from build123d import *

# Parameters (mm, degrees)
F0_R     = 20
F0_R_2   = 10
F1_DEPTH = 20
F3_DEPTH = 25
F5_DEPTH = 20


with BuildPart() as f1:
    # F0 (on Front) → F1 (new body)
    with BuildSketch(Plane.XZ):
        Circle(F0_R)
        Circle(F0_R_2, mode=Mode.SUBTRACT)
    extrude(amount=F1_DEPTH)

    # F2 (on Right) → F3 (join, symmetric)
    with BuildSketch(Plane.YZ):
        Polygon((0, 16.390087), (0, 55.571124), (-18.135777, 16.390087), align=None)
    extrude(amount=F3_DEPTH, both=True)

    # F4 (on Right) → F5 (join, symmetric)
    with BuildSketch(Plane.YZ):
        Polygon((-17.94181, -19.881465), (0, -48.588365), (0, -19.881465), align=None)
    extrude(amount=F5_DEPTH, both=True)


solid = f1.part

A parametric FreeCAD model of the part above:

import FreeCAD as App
import Part
import Sketcher

V = App.Vector
Q = App.Units.Quantity

doc = App.newDocument("Part")
params = doc.addObject("Spreadsheet::Sheet", "Params")
for row, (alias, value) in enumerate([
    ("sketch1_diameter", "40 mm"),
    ("sketch1_diameter2", "20 mm"),
    ("pad1_length", "20 mm"),
    ("pad2_length", "50 mm"),
    ("pad3_length", "40 mm"),
], start=1):
    params.set(f"A{row}", alias)
    params.set(f"B{row}", "=" + value)
    params.setAlias(f"B{row}", alias)

body = doc.addObject("PartDesign::Body", "Body")

sketch1 = body.newObject("Sketcher::SketchObject", "Sketch")
sketch1.AttachmentSupport = (doc.getObject("XZ_Plane"), [""])
sketch1.MapMode = "FlatFace"
sketch1.addGeometry([
    Part.Circle(V(0, 0, 0), V(0, 0, 1), 20),
    Part.Circle(V(0, 0, 0), V(0, 0, 1), 10),
], False)
sketch1.addConstraint([
    Sketcher.Constraint("Coincident", 0, 3, -1, 1),
    Sketcher.Constraint("Coincident", 1, 3, -1, 1),
    Sketcher.Constraint("Diameter", 0, Q("40 mm")),
    Sketcher.Constraint("Diameter", 1, Q("20 mm")),
])
sketch1.setExpression("Constraints[2]", "Params.sketch1_diameter")
sketch1.setExpression("Constraints[3]", "Params.sketch1_diameter2")
pad1 = body.newObject("PartDesign::Pad", "Pad")
pad1.Profile = sketch1
pad1.setExpression("Length", "Params.pad1_length")

sketch2 = body.newObject("Sketcher::SketchObject", "Sketch001")
sketch2.AttachmentSupport = (doc.getObject("YZ_Plane"), [""])
sketch2.MapMode = "FlatFace"
sketch2.addGeometry([
    Part.LineSegment(V(0, 16, 0), V(0, 56, 0)),
    Part.LineSegment(V(0, 56, 0), V(-18, 16, 0)),
    Part.LineSegment(V(-18, 16, 0), V(0, 16, 0)),
], False)
sketch2.addConstraint([
    Sketcher.Constraint("Coincident", 0, 2, 1, 1),
    Sketcher.Constraint("Coincident", 1, 2, 2, 1),
    Sketcher.Constraint("Coincident", 2, 2, 0, 1),
    Sketcher.Constraint("Vertical", 0),
    Sketcher.Constraint("Horizontal", 2),
    Sketcher.Constraint("PointOnObject", 0, 2, -2),
    Sketcher.Constraint("Distance", 1, Q("43.174762 mm")),
    Sketcher.Constraint("DistanceX", 2, 1, 2, 2, Q("18.135777 mm")),
    Sketcher.Constraint("DistanceY", -1, 1, 0, 2, Q("55.571124 mm")),
])
pad2 = body.newObject("PartDesign::Pad", "Pad001")
pad2.Profile = sketch2
pad2.setExpression("Length", "Params.pad2_length")
pad2.Midplane = True

sketch3 = body.newObject("Sketcher::SketchObject", "Sketch002")
sketch3.AttachmentSupport = (doc.getObject("YZ_Plane"), [""])
sketch3.MapMode = "FlatFace"
sketch3.addGeometry([
    Part.LineSegment(V(-18, -20, 0), V(0, -49, 0)),
    Part.LineSegment(V(0, -49, 0), V(0, -20, 0)),
    Part.LineSegment(V(0, -20, 0), V(-18, -20, 0)),
], False)
sketch3.addConstraint([
    Sketcher.Constraint("Coincident", 0, 2, 1, 1),
    Sketcher.Constraint("Coincident", 1, 2, 2, 1),
    Sketcher.Constraint("Coincident", 2, 2, 0, 1),
    Sketcher.Constraint("Vertical", 1),
    Sketcher.Constraint("Horizontal", 2),
    Sketcher.Constraint("PointOnObject", 0, 2, -2),
    Sketcher.Constraint("DistanceY", 1, 1, 1, 2, Q("28.7069 mm")),
    Sketcher.Constraint("DistanceX", 2, 2, 2, 1, Q("17.94181 mm")),
    Sketcher.Constraint("DistanceY", 0, 2, -1, 1, Q("48.588365 mm")),
])
pad3 = body.newObject("PartDesign::Pad", "Pad002")
pad3.Profile = sketch3
pad3.setExpression("Length", "Params.pad3_length")
pad3.Midplane = True

doc.recompute()
